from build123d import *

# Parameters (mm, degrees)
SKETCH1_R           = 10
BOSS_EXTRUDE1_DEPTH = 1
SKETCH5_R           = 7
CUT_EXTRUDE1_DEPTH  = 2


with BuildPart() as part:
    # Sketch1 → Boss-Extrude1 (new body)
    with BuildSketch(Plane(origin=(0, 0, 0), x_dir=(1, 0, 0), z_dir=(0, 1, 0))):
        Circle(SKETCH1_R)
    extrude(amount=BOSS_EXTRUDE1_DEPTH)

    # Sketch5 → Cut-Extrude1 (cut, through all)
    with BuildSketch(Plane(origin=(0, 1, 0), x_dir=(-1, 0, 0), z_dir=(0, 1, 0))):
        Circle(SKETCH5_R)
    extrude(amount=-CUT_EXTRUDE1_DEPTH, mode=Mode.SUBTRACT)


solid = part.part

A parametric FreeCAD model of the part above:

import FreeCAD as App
import Part
import Sketcher

V = App.Vector
Q = App.Units.Quantity

doc = App.newDocument("Part")
body = doc.addObject("PartDesign::Body", "Body")

# Sketch on XZ plane
sketch1 = body.newObject("Sketcher::SketchObject", "Sketch")
sketch1.AttachmentSupport = (doc.getObject("XZ_Plane"), [""])
sketch1.MapMode = "FlatFace"
sketch1.addGeometry(Part.Circle(V(0, 0, 0), V(0, 0, 1), 10), False)
sketch1.addConstraint(Sketcher.Constraint("Coincident", 0, 3, -1, 1))
sketch1.addConstraint(Sketcher.Constraint("Diameter", 0, Q("20 mm")))
pad1 = body.newObject("PartDesign::Pad", "Pad")
pad1.Profile = sketch1
pad1.Length = 1
pad1.Reversed = True

# Sketch on XZ plane
sketch2 = body.newObject("Sketcher::SketchObject", "Sketch001")
sketch2.AttachmentSupport = (doc.getObject("XZ_Plane"), [""])
sketch2.MapMode = "FlatFace"
sketch2.AttachmentOffset = App.Placement(V(0, 0, -1), App.Rotation())
sketch2.addGeometry(Part.Circle(V(0, 0, 0), V(0, 0, 1), 7), False)
sketch2.addConstraint(Sketcher.Constraint("Coincident", 0, 3, -1, 1))
sketch2.addConstraint(Sketcher.Constraint("Diameter", 0, Q("14 mm")))
pocket1 = body.newObject("PartDesign::Pocket", "Pocket")
pocket1.Profile = sketch2
pocket1.Type = "ThroughAll"
pocket1.Reversed = True

doc.recompute()
